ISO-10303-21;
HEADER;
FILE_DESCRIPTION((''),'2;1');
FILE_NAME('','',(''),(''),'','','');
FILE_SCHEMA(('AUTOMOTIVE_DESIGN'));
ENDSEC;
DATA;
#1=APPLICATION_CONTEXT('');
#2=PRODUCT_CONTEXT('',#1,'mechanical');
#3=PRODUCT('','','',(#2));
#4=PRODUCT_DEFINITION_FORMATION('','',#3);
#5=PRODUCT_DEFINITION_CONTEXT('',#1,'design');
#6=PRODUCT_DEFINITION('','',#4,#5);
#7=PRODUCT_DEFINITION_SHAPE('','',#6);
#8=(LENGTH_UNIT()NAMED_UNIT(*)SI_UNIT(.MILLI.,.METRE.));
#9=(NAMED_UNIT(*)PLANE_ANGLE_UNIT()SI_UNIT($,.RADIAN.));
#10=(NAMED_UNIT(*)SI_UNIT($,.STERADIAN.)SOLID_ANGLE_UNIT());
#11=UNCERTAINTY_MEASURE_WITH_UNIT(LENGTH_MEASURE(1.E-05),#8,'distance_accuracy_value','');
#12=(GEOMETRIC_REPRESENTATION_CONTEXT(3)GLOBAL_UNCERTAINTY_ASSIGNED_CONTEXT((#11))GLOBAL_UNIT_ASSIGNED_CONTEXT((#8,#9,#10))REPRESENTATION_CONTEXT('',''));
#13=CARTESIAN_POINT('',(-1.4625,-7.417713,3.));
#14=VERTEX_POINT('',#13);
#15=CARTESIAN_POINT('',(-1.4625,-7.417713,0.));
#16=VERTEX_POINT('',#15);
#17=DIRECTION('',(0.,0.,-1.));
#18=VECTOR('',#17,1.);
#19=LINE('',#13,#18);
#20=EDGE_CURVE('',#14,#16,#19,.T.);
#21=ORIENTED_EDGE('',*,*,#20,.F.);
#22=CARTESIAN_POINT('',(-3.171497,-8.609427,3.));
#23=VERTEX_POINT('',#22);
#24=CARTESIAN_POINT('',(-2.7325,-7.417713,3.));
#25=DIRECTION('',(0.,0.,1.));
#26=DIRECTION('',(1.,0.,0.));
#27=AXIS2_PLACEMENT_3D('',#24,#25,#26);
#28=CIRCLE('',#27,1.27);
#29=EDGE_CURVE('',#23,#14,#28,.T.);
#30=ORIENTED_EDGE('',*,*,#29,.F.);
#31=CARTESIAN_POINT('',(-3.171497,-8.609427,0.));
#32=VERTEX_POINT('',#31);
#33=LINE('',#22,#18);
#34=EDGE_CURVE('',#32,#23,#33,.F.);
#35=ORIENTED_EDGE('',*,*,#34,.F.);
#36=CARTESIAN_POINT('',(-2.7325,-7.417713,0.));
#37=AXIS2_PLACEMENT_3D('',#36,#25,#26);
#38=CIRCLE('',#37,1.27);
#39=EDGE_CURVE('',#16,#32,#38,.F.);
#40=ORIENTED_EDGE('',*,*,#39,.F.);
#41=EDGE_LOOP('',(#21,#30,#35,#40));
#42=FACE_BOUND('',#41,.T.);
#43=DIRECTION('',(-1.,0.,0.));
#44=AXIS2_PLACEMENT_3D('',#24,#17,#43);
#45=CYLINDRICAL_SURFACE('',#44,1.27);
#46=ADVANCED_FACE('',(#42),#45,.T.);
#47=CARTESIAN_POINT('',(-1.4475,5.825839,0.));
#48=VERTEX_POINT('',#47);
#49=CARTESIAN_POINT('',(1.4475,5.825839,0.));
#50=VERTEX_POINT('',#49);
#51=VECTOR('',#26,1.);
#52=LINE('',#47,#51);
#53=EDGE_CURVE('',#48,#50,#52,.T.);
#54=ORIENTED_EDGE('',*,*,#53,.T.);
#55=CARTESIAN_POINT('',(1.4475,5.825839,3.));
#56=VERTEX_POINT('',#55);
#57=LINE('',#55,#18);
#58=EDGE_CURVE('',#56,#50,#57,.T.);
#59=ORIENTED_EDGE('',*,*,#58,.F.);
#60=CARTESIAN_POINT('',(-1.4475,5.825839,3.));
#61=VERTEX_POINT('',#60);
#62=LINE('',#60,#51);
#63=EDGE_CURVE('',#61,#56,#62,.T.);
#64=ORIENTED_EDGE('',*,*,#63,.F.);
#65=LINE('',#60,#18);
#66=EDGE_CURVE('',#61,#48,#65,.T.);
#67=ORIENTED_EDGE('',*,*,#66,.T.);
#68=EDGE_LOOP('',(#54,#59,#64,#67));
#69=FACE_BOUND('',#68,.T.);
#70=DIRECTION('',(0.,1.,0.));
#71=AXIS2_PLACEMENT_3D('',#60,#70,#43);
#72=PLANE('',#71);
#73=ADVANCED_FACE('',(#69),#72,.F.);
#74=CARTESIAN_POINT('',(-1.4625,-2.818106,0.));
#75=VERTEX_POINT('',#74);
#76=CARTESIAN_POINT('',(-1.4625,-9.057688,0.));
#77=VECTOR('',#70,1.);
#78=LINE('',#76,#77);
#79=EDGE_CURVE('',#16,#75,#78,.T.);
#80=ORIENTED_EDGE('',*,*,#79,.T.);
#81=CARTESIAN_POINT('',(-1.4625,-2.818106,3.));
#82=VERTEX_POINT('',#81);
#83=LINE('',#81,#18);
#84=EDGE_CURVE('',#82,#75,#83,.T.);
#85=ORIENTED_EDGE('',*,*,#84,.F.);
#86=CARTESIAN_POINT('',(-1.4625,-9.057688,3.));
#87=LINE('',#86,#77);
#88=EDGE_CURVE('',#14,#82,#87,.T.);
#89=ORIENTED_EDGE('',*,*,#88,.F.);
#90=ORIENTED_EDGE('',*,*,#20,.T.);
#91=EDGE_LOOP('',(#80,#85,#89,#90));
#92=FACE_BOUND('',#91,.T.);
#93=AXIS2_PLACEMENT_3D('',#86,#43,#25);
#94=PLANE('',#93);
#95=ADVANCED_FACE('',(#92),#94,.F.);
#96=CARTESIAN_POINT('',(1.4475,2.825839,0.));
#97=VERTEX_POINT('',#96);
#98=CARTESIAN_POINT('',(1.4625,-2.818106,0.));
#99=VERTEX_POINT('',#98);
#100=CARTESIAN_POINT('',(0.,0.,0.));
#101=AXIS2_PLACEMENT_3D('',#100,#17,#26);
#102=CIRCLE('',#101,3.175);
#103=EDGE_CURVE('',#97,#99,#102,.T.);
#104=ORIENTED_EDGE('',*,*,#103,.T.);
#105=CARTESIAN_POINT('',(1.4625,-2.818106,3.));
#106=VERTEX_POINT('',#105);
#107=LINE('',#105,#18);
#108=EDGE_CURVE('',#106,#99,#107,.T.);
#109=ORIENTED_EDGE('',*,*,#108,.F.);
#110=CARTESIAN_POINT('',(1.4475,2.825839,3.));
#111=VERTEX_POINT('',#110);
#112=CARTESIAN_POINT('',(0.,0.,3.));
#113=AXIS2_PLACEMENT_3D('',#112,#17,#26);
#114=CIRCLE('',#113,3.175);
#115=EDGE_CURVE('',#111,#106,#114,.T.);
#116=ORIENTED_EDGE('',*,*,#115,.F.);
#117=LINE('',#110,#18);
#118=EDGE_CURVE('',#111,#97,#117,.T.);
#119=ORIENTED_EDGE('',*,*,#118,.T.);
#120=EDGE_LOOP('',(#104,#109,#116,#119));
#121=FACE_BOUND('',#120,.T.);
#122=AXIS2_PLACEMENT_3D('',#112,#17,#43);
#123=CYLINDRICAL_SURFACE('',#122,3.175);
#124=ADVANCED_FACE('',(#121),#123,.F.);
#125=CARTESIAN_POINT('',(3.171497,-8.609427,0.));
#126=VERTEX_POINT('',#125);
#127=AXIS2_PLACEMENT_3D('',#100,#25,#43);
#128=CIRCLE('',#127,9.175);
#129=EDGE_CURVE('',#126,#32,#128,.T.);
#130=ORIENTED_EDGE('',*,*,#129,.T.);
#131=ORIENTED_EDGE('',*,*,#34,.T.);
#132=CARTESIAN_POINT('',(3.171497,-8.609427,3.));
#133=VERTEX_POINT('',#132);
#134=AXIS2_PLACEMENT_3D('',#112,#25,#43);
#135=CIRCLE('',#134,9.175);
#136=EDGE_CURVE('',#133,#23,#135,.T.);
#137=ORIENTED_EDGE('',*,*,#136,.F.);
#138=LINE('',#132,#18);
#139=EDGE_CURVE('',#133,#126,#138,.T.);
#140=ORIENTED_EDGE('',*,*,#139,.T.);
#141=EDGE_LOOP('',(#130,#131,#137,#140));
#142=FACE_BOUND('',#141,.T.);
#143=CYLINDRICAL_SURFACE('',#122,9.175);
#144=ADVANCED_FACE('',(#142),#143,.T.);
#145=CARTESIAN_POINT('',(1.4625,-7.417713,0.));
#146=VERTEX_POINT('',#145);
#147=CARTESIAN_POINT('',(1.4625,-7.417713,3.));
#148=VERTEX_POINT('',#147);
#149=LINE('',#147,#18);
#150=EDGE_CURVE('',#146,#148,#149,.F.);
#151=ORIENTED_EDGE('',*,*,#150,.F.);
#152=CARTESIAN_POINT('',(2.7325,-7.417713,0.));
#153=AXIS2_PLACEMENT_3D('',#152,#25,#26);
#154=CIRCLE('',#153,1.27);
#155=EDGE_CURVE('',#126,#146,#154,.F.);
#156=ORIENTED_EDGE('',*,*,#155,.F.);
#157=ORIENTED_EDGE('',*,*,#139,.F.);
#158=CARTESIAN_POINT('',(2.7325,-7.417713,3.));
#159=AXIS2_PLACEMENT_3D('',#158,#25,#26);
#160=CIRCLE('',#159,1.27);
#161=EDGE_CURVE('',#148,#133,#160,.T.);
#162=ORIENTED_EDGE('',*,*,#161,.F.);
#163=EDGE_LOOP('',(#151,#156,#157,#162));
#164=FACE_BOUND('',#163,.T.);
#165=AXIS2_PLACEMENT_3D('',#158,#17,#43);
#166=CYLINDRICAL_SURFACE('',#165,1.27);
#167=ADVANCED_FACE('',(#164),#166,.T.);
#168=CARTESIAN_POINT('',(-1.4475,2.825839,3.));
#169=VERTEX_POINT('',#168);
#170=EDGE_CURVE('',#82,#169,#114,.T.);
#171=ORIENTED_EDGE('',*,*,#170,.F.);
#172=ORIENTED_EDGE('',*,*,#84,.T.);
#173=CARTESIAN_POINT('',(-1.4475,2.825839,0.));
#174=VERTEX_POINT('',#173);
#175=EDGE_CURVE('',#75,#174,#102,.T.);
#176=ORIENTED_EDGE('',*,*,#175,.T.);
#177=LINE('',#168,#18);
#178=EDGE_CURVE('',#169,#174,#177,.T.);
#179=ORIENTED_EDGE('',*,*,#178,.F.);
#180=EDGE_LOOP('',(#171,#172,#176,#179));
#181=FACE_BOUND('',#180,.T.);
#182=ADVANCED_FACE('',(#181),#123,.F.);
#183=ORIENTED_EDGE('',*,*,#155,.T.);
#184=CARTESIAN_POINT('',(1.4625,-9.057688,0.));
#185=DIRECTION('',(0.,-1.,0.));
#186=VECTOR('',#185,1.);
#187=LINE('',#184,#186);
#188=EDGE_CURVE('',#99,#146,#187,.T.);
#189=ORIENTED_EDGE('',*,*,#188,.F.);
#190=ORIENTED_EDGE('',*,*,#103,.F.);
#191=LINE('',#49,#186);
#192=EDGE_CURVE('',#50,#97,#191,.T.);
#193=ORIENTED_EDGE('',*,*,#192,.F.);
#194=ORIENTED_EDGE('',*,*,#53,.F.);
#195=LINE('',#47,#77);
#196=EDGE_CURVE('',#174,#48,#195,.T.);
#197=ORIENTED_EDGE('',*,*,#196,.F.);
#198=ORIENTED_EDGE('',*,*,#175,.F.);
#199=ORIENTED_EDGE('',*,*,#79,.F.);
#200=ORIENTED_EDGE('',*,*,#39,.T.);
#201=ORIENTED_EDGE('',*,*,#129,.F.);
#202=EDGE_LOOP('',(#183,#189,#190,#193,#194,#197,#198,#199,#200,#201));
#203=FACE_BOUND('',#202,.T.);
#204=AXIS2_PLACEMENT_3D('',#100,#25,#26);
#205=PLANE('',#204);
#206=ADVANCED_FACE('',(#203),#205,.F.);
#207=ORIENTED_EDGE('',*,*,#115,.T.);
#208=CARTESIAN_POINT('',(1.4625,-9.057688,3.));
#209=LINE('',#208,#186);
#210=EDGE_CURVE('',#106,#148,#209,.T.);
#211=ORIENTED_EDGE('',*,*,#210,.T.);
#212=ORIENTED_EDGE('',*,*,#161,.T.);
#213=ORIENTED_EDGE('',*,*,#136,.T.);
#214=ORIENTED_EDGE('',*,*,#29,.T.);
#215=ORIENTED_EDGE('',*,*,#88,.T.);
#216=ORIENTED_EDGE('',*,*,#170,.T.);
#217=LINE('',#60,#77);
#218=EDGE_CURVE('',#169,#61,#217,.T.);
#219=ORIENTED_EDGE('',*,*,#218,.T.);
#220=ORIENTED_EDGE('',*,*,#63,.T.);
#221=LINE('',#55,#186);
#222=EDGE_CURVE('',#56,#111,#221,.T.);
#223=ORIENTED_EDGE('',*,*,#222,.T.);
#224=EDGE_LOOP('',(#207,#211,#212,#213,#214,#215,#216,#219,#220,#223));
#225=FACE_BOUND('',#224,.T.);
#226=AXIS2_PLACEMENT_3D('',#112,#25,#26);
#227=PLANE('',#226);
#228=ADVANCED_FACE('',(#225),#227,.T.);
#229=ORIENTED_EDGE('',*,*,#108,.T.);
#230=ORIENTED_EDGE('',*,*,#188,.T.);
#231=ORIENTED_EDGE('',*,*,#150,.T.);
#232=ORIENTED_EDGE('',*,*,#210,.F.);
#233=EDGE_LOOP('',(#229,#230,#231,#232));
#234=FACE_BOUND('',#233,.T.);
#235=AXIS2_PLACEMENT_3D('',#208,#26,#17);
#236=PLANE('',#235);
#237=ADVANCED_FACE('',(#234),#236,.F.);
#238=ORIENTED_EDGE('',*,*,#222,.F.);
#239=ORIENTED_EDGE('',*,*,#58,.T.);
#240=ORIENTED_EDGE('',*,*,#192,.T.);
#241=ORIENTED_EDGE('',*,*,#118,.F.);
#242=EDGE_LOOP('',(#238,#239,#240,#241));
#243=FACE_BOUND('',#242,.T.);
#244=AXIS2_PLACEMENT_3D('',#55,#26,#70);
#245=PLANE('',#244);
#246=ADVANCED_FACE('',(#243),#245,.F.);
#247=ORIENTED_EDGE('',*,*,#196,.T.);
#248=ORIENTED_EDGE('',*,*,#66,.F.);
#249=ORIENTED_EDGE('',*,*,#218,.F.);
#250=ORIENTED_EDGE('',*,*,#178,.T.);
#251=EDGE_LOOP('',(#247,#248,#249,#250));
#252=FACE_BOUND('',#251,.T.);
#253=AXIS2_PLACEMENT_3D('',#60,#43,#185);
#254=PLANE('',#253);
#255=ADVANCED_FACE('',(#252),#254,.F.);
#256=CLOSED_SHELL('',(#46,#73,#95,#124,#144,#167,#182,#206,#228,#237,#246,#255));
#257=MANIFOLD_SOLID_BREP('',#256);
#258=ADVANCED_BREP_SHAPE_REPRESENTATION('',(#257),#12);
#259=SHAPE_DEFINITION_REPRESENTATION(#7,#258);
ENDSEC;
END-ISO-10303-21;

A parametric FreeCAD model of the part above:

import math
import FreeCAD as App
import Part
import Sketcher
from FreeCAD import Vector
Q = App.Units.Quantity


def edges_at(feature, points):
    """Names of the edges that pass closest to the given points."""
    edges = feature.Shape.Edges
    near = lambda p: min(range(len(edges)), key=lambda i: edges[i].distToShape(Part.Vertex(*p))[0])
    return sorted({f"Edge{near(p) + 1}" for p in points})

doc = App.newDocument("Part")
body = doc.addObject("PartDesign::Body", "Body")

# Sketch on XY plane
sketch1 = doc.addObject("Sketcher::SketchObject", "Sketch")
body.addObject(sketch1)
sketch1.AttachmentSupport = (doc.XY_Plane, [""])
sketch1.MapMode = "FlatFace"
sketch1.addGeometry([
    Part.LineSegment(Vector(-1.4, 5.8, 0), Vector(1.4, 5.8, 0)),  # 0
    Part.LineSegment(Vector(1.4, 5.8, 0), Vector(1.4, 2.8, 0)),  # 1
    Part.ArcOfCircle(Part.Circle(Vector(0, 0, 0), Vector(0, 0, 1), 3.2), math.radians(-63), math.radians(63)),  # 2
    Part.LineSegment(Vector(1.5, -2.8, 0), Vector(1.5, -9.1, 0)),  # 3
    Part.ArcOfCircle(Part.Circle(Vector(0, 0, 0), Vector(0, 0, 1), 9.2), math.radians(-81), math.radians(261)),  # 4
    Part.LineSegment(Vector(-1.5, -9.1, 0), Vector(-1.5, -2.8, 0)),  # 5
    Part.ArcOfCircle(Part.Circle(Vector(0, 0, 0), Vector(0, 0, 1), 3.2), math.radians(117), math.radians(243)),  # 6
    Part.LineSegment(Vector(-1.4, 2.8, 0), Vector(-1.4, 5.8, 0)),  # 7
], False)
sketch1.addConstraint([
    Sketcher.Constraint("Coincident", 0, 2, 1, 1),
    Sketcher.Constraint("Coincident", 1, 2, 2, 2),
    Sketcher.Constraint("Coincident", 2, 1, 3, 1),
    Sketcher.Constraint("Coincident", 3, 2, 4, 1),
    Sketcher.Constraint("Coincident", 4, 2, 5, 1),
    Sketcher.Constraint("Coincident", 5, 2, 6, 2),
    Sketcher.Constraint("Coincident", 6, 1, 7, 1),
    Sketcher.Constraint("Coincident", 7, 2, 0, 1),
    Sketcher.Constraint("Horizontal", 0),
    Sketcher.Constraint("Vertical", 1),
    Sketcher.Constraint("Vertical", 3),
    Sketcher.Constraint("Vertical", 5),
    Sketcher.Constraint("Vertical", 7),
    Sketcher.Constraint("Coincident", 2, 3, -1, 1),
    Sketcher.Constraint("Coincident", 4, 3, -1, 1),
    Sketcher.Constraint("Coincident", 6, 3, -1, 1),
    Sketcher.Constraint("Equal", 2, 6),
    Sketcher.Constraint("Horizontal", 3, 2, 4, 2),
    Sketcher.Constraint("Horizontal", 1, 2, 6, 1),
    Sketcher.Constraint("Radius", 2, Q("0.125 in")),
    Sketcher.Constraint("Radius", 4, Q("9.175 mm")),
    Sketcher.Constraint("DistanceX", 0, 1, 0, 2, Q("2.895 mm")),
    Sketcher.Constraint("DistanceY", 1, 2, 1, 1, Q("3 mm")),
    Sketcher.Constraint("DistanceX", -1, 1, 2, 1, Q("1.4625 mm")),
])
pad1 = doc.addObject("PartDesign::Pad", "Pad")
body.addObject(pad1)
pad1.Profile = sketch1
pad1.Length = 3
doc.recompute()

fillet = doc.addObject("PartDesign::Fillet", "Fillet")
body.addObject(fillet)
fillet.Base = (pad1, edges_at(pad1, [(-1.462, -9.058, 1.5), (1.462, -9.058, 1.5)]))
fillet.Radius = Q("0.05 in")

doc.recompute()
